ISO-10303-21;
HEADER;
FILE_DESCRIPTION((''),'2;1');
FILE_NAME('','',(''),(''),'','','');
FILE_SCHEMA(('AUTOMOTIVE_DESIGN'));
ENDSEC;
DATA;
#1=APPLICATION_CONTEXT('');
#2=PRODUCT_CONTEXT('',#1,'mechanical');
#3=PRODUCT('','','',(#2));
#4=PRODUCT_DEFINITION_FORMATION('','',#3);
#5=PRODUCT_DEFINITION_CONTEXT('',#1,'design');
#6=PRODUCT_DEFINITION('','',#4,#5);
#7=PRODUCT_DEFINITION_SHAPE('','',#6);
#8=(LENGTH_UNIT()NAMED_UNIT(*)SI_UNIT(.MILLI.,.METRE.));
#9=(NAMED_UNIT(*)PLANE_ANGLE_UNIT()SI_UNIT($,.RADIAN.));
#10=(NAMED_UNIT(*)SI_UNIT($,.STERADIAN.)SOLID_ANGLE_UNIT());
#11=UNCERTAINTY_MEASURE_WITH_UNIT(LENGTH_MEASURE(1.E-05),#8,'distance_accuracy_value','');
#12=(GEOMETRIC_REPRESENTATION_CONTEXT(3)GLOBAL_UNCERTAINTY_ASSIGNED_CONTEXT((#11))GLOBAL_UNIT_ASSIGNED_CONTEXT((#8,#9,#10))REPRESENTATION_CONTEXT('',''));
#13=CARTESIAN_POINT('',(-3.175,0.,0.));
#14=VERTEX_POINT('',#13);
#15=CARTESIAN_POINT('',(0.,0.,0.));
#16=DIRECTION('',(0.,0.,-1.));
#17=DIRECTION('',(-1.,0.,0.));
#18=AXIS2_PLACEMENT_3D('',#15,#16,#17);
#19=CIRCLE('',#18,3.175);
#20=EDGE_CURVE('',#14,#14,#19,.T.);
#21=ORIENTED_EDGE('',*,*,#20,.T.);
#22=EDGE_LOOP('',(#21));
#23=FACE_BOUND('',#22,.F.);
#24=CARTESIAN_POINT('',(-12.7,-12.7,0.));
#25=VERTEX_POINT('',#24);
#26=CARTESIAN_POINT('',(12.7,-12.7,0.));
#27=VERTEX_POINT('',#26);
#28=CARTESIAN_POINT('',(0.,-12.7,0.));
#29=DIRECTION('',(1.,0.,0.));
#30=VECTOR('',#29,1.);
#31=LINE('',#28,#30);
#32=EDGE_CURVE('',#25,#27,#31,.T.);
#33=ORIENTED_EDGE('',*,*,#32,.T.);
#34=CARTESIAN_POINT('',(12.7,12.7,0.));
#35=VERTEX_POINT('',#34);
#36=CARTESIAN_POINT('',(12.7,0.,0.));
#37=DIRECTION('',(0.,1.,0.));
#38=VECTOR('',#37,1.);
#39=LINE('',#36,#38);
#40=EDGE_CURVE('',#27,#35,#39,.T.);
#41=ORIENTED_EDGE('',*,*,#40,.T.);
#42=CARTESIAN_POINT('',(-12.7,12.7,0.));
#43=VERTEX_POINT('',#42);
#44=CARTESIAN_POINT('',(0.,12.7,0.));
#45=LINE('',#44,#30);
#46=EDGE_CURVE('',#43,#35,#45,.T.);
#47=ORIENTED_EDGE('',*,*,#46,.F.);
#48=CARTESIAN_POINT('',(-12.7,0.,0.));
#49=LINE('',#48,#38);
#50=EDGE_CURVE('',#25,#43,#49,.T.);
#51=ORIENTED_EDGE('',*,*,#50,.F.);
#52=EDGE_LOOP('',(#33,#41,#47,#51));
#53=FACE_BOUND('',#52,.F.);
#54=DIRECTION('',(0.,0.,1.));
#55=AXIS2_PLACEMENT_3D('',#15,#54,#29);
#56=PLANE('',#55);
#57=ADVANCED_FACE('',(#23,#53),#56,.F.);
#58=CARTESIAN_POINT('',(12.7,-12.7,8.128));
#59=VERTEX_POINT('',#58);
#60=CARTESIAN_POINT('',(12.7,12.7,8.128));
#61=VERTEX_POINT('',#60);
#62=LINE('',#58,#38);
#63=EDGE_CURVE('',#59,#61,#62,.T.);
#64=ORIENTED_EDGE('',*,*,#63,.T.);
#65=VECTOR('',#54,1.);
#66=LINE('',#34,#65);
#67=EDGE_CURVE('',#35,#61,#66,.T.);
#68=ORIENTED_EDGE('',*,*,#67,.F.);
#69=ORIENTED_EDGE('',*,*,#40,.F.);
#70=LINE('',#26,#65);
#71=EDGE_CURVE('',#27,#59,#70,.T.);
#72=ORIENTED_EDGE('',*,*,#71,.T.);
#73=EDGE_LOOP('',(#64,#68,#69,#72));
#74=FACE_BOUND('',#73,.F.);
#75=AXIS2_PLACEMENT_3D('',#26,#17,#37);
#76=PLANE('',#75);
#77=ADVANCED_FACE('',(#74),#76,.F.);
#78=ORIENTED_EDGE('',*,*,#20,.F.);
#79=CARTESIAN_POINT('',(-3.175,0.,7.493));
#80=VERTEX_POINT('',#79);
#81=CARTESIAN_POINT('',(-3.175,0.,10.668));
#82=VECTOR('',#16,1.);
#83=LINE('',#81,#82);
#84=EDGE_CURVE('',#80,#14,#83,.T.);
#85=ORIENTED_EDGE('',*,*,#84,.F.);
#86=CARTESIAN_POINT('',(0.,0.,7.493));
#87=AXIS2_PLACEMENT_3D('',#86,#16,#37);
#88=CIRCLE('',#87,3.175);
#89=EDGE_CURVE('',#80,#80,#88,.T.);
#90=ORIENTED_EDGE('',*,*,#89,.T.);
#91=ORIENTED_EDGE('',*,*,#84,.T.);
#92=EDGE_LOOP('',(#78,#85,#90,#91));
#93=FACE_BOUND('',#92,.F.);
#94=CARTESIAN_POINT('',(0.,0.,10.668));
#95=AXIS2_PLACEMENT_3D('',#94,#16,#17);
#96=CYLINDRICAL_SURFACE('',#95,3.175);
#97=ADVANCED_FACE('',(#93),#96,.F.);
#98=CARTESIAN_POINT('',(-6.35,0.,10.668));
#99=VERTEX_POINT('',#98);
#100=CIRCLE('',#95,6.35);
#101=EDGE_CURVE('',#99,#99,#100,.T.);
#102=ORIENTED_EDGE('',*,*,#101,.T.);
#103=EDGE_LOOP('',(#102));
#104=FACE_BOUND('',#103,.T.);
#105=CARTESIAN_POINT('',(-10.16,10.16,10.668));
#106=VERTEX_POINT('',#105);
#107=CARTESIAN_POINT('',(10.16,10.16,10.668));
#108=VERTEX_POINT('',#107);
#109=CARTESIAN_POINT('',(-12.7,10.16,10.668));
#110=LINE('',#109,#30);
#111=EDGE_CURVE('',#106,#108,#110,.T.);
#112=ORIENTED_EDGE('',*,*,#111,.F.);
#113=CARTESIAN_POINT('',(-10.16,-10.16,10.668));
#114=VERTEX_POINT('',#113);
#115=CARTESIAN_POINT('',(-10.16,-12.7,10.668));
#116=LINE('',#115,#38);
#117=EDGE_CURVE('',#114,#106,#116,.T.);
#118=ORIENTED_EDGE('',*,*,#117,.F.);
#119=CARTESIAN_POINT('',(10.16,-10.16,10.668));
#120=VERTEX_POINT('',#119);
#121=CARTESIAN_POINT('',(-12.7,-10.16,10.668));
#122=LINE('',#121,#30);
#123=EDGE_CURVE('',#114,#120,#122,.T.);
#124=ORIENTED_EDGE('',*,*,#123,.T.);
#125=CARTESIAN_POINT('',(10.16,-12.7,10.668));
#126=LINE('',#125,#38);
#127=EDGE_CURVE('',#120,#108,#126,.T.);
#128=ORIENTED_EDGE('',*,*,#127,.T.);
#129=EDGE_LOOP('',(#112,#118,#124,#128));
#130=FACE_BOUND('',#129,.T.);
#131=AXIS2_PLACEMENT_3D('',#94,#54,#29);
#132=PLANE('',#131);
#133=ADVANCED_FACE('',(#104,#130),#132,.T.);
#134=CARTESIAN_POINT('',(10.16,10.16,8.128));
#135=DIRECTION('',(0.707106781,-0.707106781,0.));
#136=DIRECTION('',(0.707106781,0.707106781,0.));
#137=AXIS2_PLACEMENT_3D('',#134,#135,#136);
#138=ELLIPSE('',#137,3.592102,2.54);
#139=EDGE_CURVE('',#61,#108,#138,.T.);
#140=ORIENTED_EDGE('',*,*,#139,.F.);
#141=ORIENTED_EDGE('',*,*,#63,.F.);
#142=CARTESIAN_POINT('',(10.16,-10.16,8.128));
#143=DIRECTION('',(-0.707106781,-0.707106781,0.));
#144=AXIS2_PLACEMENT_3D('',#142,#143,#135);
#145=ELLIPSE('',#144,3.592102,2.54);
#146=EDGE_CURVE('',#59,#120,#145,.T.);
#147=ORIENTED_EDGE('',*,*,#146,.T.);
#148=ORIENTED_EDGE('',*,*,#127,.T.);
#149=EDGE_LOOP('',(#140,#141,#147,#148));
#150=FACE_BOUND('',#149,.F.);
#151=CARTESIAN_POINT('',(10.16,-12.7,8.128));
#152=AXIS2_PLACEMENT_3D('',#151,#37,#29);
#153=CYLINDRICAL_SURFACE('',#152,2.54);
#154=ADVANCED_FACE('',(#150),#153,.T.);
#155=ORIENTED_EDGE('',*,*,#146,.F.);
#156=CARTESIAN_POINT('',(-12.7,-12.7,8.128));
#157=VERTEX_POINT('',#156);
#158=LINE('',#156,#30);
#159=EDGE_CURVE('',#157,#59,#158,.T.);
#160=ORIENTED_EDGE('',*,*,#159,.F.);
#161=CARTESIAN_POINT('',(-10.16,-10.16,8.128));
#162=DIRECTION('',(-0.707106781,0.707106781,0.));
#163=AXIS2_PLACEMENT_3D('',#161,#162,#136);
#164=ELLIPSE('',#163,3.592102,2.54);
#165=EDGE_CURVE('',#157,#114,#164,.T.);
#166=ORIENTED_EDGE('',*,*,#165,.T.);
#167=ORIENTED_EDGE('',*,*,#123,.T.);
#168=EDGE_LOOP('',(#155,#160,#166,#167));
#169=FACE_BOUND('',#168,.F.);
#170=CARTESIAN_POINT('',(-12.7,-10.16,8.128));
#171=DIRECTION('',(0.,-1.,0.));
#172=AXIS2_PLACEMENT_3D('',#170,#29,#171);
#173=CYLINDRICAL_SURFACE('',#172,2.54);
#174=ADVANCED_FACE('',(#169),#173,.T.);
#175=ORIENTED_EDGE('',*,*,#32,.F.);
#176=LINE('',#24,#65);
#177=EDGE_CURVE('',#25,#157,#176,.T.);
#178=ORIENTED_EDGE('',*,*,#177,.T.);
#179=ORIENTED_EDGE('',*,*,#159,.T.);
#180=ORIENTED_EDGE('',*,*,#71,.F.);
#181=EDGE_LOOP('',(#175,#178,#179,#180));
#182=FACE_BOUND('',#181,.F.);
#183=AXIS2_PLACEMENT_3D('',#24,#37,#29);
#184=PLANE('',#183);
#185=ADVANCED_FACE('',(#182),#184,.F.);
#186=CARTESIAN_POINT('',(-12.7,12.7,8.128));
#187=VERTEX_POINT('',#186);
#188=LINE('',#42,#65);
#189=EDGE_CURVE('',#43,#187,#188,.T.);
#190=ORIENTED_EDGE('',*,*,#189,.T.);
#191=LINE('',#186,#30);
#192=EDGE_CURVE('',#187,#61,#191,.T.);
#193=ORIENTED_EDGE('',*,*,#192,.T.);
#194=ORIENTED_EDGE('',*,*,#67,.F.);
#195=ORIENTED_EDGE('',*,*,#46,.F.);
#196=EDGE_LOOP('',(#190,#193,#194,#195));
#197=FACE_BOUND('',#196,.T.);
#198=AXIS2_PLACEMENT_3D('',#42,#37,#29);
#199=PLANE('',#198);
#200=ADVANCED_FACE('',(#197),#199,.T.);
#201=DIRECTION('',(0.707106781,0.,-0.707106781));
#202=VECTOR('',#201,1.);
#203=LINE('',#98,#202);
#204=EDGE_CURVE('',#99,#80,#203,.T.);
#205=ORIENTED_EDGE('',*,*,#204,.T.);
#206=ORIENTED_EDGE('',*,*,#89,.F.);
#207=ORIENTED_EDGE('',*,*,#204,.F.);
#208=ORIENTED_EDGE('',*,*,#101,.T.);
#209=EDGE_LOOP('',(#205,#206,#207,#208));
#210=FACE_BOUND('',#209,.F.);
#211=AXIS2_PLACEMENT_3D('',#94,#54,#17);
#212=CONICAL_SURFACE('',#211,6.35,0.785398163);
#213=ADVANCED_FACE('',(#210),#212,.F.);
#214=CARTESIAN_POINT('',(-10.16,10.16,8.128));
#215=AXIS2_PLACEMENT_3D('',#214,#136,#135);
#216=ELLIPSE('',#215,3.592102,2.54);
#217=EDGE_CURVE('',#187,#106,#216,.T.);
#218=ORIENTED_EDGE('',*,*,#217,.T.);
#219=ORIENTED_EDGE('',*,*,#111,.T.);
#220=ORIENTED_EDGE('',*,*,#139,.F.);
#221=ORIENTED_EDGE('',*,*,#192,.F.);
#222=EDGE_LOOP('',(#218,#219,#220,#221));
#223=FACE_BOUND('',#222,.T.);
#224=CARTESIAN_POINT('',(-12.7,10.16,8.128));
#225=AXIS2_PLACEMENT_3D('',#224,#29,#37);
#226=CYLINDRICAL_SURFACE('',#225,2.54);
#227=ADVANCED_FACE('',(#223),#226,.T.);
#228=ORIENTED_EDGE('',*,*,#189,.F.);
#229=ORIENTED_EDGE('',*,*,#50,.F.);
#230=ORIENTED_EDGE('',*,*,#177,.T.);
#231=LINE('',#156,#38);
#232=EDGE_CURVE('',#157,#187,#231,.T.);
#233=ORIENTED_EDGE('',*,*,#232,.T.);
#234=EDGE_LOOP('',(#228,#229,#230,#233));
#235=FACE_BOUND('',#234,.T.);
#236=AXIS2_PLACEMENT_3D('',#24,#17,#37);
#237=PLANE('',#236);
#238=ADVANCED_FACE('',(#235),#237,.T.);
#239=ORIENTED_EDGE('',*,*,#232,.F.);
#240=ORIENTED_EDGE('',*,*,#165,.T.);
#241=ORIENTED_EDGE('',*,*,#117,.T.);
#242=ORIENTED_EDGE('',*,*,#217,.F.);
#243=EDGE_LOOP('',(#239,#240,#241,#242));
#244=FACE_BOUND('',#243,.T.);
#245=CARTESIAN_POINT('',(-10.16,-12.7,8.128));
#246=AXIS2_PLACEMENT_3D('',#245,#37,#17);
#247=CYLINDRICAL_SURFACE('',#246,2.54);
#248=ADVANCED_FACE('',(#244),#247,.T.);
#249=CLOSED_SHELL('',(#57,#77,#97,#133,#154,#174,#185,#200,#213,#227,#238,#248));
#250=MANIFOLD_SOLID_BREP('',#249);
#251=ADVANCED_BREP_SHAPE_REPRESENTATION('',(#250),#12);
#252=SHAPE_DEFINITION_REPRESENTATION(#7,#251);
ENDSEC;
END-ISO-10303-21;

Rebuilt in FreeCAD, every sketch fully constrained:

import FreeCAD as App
import Part
import Sketcher
Q = App.Units.Quantity


def edges_at(feature, points):
    """Names of the edges that pass closest to the given points."""
    edges = feature.Shape.Edges
    near = lambda p: min(range(len(edges)), key=lambda i: edges[i].distToShape(Part.Vertex(*p))[0])
    return sorted({f"Edge{near(p) + 1}" for p in points})

doc = App.newDocument("Part")
params = doc.addObject("Spreadsheet::Sheet", "Params")
for row, (alias, value) in enumerate([
    ("sketch1_width", "1 in"),
    ("pad1_length", "0.42 in"),
    ("fillet_radius", "0.1 in"),
    ("sketch2_diameter", "0.25 in"),
    ("hole_diameter", "0.25 in"),
    ("hole_csink_diameter", "0.5 in"),
], start=1):
    params.set(f"A{row}", alias)
    params.set(f"B{row}", "=" + value)
    params.setAlias(f"B{row}", alias)

body = doc.addObject("PartDesign::Body", "Body")

# Sketch on XY plane
sketch1 = body.newObject("Sketcher::SketchObject", "Sketch")
sketch1.AttachmentSupport = (doc.getObject("XY_Plane"), [""])
sketch1.MapMode = "FlatFace"
sketch1.addGeometry(Part.LineSegment(App.Vector(-13, 13, 0), App.Vector(-13, -13, 0)), False)
sketch1.addGeometry(Part.LineSegment(App.Vector(-13, -13, 0), App.Vector(13, -13, 0)), False)
sketch1.addGeometry(Part.LineSegment(App.Vector(13, -13, 0), App.Vector(13, 13, 0)), False)
sketch1.addGeometry(Part.LineSegment(App.Vector(13, 13, 0), App.Vector(-13, 13, 0)), False)
sketch1.addConstraint(Sketcher.Constraint("Coincident", 0, 2, 1, 1))
sketch1.addConstraint(Sketcher.Constraint("Coincident", 1, 2, 2, 1))
sketch1.addConstraint(Sketcher.Constraint("Coincident", 2, 2, 3, 1))
sketch1.addConstraint(Sketcher.Constraint("Coincident", 3, 2, 0, 1))
sketch1.addConstraint(Sketcher.Constraint("Vertical", 0))
sketch1.addConstraint(Sketcher.Constraint("Horizontal", 1))
sketch1.addConstraint(Sketcher.Constraint("Vertical", 2))
sketch1.addConstraint(Sketcher.Constraint("Horizontal", 3))
sketch1.addConstraint(Sketcher.Constraint("Symmetric", 0, 2, 2, 2, -1, 1))
sketch1.addConstraint(Sketcher.Constraint("Equal", 3, 0))
sketch1.addConstraint(Sketcher.Constraint("DistanceX", 1, 1, 1, 2, Q("1 in")))
sketch1.setExpression("Constraints[10]", "Params.sketch1_width")
pad1 = body.newObject("PartDesign::Pad", "Pad")
pad1.Profile = sketch1
pad1.setExpression("Length", "Params.pad1_length")
doc.recompute()

fillet = body.newObject("PartDesign::Fillet", "Fillet")
fillet.Base = (pad1, edges_at(pad1, [
    (0, -12.7, 10.668),
    (0, 12.7, 10.668),
    (12.7, 0, 10.668),
    (-12.7, 0, 10.668),
]))
fillet.setExpression("Radius", "Params.fillet_radius")

# Sketch on XY plane
sketch2 = body.newObject("Sketcher::SketchObject", "Sketch001")
sketch2.AttachmentSupport = (doc.getObject("XY_Plane"), [""])
sketch2.MapMode = "FlatFace"
sketch2.AttachmentOffset = App.Placement(App.Vector(0, 0, 0.42 * 25.4), App.Rotation())
sketch2.addGeometry(Part.Circle(App.Vector(0, 0, 0), App.Vector(0, 0, 1), 3.2), False)
sketch2.addConstraint(Sketcher.Constraint("Coincident", 0, 3, -1, 1))
sketch2.addConstraint(Sketcher.Constraint("Diameter", 0, Q("0.25 in")))
sketch2.setExpression("Constraints[1]", "Params.sketch2_diameter")
doc.recompute()
hole = body.newObject("PartDesign::Hole", "Hole")
hole.Profile = sketch2
hole.ThreadType = "None"
hole.setExpression("Diameter", "Params.hole_diameter")
hole.DepthType = "ThroughAll"
hole.HoleCutType = "Countersink"
hole.setExpression("HoleCutDiameter", "Params.hole_csink_diameter")
hole.HoleCutCountersinkAngle = 90

doc.recompute()
